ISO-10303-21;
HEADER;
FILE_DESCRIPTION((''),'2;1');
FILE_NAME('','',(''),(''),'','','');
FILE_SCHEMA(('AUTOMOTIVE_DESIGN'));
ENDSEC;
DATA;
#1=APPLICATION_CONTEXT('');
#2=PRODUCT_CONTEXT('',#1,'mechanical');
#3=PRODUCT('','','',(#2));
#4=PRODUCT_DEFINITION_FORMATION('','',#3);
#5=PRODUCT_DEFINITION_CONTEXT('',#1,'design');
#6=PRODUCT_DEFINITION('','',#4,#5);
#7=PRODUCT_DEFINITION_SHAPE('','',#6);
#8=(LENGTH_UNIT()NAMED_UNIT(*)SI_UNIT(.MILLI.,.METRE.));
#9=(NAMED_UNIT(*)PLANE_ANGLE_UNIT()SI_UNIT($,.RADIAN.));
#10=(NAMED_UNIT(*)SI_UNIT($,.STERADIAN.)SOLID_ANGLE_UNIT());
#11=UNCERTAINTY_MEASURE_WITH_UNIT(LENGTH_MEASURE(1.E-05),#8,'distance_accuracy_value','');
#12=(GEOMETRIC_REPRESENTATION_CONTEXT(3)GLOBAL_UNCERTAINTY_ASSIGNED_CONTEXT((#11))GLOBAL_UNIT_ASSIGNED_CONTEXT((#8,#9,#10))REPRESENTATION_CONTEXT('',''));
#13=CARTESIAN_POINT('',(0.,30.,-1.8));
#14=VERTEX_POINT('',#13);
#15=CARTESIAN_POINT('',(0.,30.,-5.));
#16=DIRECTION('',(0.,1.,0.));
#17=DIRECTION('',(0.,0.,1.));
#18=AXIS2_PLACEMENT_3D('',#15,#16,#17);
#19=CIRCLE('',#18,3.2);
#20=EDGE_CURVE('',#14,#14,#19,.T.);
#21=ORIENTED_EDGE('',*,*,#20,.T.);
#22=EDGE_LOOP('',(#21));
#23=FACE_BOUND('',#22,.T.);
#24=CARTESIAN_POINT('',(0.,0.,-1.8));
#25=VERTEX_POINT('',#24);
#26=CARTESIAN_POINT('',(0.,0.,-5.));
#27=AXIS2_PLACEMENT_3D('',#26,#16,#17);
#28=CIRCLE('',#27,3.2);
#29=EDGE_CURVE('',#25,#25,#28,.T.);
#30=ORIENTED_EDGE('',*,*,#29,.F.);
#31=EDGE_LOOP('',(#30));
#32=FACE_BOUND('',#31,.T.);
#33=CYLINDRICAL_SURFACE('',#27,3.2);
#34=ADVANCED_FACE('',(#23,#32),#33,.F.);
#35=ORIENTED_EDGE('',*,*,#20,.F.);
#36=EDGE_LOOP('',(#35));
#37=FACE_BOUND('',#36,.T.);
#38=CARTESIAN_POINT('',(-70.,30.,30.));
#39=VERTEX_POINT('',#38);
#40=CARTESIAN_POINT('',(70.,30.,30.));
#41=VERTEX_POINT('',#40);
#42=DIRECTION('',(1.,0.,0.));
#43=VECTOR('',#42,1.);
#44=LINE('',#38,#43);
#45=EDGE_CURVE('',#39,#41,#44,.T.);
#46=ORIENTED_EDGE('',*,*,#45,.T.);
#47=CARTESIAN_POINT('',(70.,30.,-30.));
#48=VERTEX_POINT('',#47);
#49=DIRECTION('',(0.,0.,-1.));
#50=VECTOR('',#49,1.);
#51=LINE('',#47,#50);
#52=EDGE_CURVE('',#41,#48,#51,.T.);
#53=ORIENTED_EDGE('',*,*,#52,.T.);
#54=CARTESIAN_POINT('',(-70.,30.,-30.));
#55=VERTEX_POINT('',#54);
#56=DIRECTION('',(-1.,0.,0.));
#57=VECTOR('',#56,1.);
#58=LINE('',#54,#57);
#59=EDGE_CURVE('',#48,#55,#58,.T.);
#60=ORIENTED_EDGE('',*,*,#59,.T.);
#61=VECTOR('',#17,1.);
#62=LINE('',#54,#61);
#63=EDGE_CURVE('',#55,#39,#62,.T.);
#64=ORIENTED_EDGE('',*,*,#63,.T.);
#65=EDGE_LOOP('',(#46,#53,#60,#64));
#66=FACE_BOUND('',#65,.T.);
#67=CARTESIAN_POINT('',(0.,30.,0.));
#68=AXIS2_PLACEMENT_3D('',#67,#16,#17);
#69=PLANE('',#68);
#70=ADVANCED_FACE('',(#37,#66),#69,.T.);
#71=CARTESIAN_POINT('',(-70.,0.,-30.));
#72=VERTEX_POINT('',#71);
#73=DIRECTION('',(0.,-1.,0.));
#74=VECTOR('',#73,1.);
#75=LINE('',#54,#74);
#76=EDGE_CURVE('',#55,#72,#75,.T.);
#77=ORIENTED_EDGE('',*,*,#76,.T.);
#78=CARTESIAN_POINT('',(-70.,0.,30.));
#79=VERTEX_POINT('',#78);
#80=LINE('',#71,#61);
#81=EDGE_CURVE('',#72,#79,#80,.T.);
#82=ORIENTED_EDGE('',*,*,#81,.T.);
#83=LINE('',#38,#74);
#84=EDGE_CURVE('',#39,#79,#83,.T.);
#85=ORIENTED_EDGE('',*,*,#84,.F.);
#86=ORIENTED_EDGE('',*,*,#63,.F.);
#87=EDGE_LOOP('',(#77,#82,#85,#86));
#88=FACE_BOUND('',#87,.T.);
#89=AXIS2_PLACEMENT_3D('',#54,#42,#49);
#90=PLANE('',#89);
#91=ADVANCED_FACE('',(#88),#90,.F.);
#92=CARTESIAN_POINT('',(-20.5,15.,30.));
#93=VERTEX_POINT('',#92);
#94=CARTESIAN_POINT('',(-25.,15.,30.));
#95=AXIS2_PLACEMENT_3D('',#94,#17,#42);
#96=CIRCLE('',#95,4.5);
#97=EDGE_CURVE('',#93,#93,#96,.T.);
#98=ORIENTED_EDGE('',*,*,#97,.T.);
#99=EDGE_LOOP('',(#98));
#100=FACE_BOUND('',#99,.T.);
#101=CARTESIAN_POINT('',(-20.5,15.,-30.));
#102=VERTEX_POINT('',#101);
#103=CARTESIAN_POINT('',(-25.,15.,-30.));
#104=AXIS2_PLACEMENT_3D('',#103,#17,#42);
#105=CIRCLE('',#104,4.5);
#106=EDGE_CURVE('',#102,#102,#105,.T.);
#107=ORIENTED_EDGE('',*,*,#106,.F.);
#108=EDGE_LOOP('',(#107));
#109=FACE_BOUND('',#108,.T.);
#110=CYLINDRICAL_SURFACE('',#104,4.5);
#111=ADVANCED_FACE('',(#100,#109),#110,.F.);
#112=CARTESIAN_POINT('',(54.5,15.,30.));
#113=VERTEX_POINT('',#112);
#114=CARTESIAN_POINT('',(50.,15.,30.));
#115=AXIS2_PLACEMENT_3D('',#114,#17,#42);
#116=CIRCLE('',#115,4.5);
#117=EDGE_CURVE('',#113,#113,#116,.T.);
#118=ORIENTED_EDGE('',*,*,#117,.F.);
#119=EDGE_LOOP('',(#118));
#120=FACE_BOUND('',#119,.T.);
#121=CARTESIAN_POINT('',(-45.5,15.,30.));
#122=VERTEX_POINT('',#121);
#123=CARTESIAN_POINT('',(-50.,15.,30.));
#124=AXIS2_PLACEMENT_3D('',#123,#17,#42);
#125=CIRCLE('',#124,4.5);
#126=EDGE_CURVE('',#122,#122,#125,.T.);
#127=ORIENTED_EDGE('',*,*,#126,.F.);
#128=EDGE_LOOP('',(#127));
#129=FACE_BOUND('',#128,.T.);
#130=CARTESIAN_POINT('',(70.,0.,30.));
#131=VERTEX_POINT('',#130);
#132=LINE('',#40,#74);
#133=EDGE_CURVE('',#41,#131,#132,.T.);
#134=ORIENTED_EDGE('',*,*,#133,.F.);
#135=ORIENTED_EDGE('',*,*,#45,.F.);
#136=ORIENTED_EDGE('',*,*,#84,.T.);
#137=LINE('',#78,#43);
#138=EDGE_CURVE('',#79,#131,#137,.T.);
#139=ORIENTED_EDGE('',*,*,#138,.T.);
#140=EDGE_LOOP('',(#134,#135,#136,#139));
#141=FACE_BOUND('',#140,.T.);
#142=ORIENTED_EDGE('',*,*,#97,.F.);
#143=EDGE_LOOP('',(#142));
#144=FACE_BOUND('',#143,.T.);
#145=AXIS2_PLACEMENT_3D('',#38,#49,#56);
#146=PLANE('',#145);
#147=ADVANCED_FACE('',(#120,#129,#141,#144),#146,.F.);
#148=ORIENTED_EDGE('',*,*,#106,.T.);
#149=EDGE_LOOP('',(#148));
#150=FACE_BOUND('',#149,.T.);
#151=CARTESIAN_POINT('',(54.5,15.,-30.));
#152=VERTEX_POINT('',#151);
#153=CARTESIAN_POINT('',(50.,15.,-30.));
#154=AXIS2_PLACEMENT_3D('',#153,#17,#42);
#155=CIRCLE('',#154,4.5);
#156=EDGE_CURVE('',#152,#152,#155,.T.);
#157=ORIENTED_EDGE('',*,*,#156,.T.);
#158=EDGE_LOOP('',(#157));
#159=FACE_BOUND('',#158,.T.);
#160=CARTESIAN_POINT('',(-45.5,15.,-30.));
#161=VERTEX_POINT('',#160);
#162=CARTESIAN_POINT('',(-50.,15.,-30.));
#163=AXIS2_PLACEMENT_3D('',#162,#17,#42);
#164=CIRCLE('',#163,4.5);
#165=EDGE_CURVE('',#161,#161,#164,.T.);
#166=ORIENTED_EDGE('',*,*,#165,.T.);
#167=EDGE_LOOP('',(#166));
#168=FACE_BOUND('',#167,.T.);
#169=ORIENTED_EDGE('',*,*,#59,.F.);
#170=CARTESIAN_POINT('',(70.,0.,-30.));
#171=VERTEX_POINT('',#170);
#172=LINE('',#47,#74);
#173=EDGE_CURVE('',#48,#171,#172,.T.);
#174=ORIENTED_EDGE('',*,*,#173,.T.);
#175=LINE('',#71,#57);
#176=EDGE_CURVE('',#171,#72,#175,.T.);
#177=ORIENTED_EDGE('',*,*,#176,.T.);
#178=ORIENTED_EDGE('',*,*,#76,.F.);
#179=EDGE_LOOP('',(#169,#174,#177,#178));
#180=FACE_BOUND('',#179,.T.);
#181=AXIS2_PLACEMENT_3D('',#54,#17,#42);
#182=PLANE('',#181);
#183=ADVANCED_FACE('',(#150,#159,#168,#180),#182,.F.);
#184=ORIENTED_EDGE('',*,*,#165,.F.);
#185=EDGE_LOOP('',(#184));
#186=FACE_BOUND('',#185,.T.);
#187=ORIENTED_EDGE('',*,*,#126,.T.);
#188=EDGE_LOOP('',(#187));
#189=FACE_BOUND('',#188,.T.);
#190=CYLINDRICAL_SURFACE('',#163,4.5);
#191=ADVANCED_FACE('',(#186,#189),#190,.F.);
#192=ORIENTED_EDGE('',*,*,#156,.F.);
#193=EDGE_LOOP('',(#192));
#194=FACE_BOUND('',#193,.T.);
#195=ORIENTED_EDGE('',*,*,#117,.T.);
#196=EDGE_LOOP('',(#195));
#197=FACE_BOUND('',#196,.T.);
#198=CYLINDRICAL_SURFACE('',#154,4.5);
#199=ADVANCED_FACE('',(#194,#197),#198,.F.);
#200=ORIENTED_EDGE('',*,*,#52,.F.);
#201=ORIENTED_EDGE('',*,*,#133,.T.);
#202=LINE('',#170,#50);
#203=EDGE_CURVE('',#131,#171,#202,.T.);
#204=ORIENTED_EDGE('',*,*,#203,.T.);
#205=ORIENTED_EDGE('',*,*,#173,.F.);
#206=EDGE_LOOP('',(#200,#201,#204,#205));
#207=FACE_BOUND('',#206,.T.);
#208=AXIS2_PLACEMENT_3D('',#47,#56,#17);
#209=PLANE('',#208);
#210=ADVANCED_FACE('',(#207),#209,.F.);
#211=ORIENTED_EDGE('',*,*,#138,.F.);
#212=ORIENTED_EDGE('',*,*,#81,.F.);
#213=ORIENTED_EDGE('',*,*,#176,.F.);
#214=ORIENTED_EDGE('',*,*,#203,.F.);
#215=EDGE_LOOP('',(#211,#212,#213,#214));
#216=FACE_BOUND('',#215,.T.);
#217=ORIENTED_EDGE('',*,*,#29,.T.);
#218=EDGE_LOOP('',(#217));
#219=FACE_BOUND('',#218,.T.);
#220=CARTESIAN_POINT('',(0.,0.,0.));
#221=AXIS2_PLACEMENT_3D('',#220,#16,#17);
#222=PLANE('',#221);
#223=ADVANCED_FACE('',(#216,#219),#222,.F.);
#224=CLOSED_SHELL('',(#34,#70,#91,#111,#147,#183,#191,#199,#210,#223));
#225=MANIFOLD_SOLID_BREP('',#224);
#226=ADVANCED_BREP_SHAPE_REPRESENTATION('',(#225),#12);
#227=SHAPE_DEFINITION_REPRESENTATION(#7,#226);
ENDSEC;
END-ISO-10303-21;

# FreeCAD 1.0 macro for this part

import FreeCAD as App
import Part
import Sketcher
from FreeCAD import Vector
Q = App.Units.Quantity

doc = App.newDocument("Part")
params = doc.addObject("Spreadsheet::Sheet", "Params")
for row, (alias, value) in enumerate([
    ("sketch1_width", "140 mm"),
    ("sketch1_height", "60 mm"),
    ("pad1_length", "30 mm"),
    ("sketch2_diameter", "9 mm"),
    ("pocket1_length", "60 mm"),
    ("sketch3_diameter", "6.4 mm"),
    ("pocket2_length", "30 mm"),
], start=1):
    params.set(f"A{row}", alias)
    params.set(f"B{row}", "=" + value)
    params.setAlias(f"B{row}", alias)

body = doc.addObject("PartDesign::Body", "Body")

# Sketch on XZ plane
sketch1 = body.newObject("Sketcher::SketchObject", "Sketch")
sketch1.AttachmentSupport = (doc.getObject("XZ_Plane"), [""])
sketch1.MapMode = "FlatFace"
sketch1.addGeometry(Part.LineSegment(Vector(-70, -30, 0), Vector(-70, 30, 0)), False)
sketch1.addGeometry(Part.LineSegment(Vector(-70, 30, 0), Vector(70, 30, 0)), False)
sketch1.addGeometry(Part.LineSegment(Vector(70, 30, 0), Vector(70, -30, 0)), False)
sketch1.addGeometry(Part.LineSegment(Vector(70, -30, 0), Vector(-70, -30, 0)), False)
sketch1.addConstraint(Sketcher.Constraint("Coincident", 0, 2, 1, 1))
sketch1.addConstraint(Sketcher.Constraint("Coincident", 1, 2, 2, 1))
sketch1.addConstraint(Sketcher.Constraint("Coincident", 2, 2, 3, 1))
sketch1.addConstraint(Sketcher.Constraint("Coincident", 3, 2, 0, 1))
sketch1.addConstraint(Sketcher.Constraint("Vertical", 0))
sketch1.addConstraint(Sketcher.Constraint("Horizontal", 1))
sketch1.addConstraint(Sketcher.Constraint("Vertical", 2))
sketch1.addConstraint(Sketcher.Constraint("Horizontal", 3))
sketch1.addConstraint(Sketcher.Constraint("Symmetric", 0, 2, 2, 2, -1, 1))
sketch1.addConstraint(Sketcher.Constraint("DistanceX", 1, 1, 1, 2, Q("140 mm")))
sketch1.addConstraint(Sketcher.Constraint("DistanceY", 0, 1, 0, 2, Q("60 mm")))
sketch1.setExpression("Constraints[9]", "Params.sketch1_width")
sketch1.setExpression("Constraints[10]", "Params.sketch1_height")
pad1 = body.newObject("PartDesign::Pad", "Pad")
pad1.Profile = sketch1
pad1.setExpression("Length", "Params.pad1_length")
pad1.Reversed = True

# Sketch on XY plane
sketch2 = body.newObject("Sketcher::SketchObject", "Sketch001")
sketch2.AttachmentSupport = (doc.getObject("XY_Plane"), [""])
sketch2.MapMode = "FlatFace"
sketch2.AttachmentOffset = App.Placement(Vector(0, 0, 30), App.Rotation())
sketch2.addGeometry(Part.Circle(Vector(50, 15, 0), Vector(0, 0, 1), 4.5), False)
sketch2.addGeometry(Part.Circle(Vector(-50, 15, 0), Vector(0, 0, 1), 4.5), False)
sketch2.addGeometry(Part.Circle(Vector(-25, 15, 0), Vector(0, 0, 1), 4.5), False)
sketch2.addConstraint(Sketcher.Constraint("Equal", 0, 1))
sketch2.addConstraint(Sketcher.Constraint("Equal", 1, 2))
sketch2.addConstraint(Sketcher.Constraint("Symmetric", 0, 3, 1, 3, -2))
sketch2.addConstraint(Sketcher.Constraint("Horizontal", 1, 3, 2, 3))
sketch2.addConstraint(Sketcher.Constraint("Diameter", 0, Q("9 mm")))
sketch2.addConstraint(Sketcher.Constraint("DistanceX", -1, 1, 0, 3, Q("50 mm")))
sketch2.addConstraint(Sketcher.Constraint("DistanceY", -1, 1, 0, 3, Q("15 mm")))
sketch2.addConstraint(Sketcher.Constraint("DistanceX", 2, 3, -1, 1, Q("25 mm")))
sketch2.setExpression("Constraints[4]", "Params.sketch2_diameter")
pocket1 = body.newObject("PartDesign::Pocket", "Pocket")
pocket1.Profile = sketch2
pocket1.setExpression("Length", "Params.pocket1_length")

# Sketch on XZ plane
sketch3 = body.newObject("Sketcher::SketchObject", "Sketch002")
sketch3.AttachmentSupport = (doc.getObject("XZ_Plane"), [""])
sketch3.MapMode = "FlatFace"
sketch3.AttachmentOffset = App.Placement(Vector(0, 0, -30), App.Rotation())
sketch3.addGeometry(Part.Circle(Vector(0, -5, 0), Vector(0, 0, 1), 3.2), False)
sketch3.addConstraint(Sketcher.Constraint("PointOnObject", 0, 3, -2))
sketch3.addConstraint(Sketcher.Constraint("Diameter", 0, Q("6.4 mm")))
sketch3.addConstraint(Sketcher.Constraint("DistanceY", 0, 3, -1, 1, Q("5 mm")))
sketch3.setExpression("Constraints[1]", "Params.sketch3_diameter")
pocket2 = body.newObject("PartDesign::Pocket", "Pocket001")
pocket2.Profile = sketch3
pocket2.setExpression("Length", "Params.pocket2_length")
pocket2.Reversed = True

doc.recompute()
